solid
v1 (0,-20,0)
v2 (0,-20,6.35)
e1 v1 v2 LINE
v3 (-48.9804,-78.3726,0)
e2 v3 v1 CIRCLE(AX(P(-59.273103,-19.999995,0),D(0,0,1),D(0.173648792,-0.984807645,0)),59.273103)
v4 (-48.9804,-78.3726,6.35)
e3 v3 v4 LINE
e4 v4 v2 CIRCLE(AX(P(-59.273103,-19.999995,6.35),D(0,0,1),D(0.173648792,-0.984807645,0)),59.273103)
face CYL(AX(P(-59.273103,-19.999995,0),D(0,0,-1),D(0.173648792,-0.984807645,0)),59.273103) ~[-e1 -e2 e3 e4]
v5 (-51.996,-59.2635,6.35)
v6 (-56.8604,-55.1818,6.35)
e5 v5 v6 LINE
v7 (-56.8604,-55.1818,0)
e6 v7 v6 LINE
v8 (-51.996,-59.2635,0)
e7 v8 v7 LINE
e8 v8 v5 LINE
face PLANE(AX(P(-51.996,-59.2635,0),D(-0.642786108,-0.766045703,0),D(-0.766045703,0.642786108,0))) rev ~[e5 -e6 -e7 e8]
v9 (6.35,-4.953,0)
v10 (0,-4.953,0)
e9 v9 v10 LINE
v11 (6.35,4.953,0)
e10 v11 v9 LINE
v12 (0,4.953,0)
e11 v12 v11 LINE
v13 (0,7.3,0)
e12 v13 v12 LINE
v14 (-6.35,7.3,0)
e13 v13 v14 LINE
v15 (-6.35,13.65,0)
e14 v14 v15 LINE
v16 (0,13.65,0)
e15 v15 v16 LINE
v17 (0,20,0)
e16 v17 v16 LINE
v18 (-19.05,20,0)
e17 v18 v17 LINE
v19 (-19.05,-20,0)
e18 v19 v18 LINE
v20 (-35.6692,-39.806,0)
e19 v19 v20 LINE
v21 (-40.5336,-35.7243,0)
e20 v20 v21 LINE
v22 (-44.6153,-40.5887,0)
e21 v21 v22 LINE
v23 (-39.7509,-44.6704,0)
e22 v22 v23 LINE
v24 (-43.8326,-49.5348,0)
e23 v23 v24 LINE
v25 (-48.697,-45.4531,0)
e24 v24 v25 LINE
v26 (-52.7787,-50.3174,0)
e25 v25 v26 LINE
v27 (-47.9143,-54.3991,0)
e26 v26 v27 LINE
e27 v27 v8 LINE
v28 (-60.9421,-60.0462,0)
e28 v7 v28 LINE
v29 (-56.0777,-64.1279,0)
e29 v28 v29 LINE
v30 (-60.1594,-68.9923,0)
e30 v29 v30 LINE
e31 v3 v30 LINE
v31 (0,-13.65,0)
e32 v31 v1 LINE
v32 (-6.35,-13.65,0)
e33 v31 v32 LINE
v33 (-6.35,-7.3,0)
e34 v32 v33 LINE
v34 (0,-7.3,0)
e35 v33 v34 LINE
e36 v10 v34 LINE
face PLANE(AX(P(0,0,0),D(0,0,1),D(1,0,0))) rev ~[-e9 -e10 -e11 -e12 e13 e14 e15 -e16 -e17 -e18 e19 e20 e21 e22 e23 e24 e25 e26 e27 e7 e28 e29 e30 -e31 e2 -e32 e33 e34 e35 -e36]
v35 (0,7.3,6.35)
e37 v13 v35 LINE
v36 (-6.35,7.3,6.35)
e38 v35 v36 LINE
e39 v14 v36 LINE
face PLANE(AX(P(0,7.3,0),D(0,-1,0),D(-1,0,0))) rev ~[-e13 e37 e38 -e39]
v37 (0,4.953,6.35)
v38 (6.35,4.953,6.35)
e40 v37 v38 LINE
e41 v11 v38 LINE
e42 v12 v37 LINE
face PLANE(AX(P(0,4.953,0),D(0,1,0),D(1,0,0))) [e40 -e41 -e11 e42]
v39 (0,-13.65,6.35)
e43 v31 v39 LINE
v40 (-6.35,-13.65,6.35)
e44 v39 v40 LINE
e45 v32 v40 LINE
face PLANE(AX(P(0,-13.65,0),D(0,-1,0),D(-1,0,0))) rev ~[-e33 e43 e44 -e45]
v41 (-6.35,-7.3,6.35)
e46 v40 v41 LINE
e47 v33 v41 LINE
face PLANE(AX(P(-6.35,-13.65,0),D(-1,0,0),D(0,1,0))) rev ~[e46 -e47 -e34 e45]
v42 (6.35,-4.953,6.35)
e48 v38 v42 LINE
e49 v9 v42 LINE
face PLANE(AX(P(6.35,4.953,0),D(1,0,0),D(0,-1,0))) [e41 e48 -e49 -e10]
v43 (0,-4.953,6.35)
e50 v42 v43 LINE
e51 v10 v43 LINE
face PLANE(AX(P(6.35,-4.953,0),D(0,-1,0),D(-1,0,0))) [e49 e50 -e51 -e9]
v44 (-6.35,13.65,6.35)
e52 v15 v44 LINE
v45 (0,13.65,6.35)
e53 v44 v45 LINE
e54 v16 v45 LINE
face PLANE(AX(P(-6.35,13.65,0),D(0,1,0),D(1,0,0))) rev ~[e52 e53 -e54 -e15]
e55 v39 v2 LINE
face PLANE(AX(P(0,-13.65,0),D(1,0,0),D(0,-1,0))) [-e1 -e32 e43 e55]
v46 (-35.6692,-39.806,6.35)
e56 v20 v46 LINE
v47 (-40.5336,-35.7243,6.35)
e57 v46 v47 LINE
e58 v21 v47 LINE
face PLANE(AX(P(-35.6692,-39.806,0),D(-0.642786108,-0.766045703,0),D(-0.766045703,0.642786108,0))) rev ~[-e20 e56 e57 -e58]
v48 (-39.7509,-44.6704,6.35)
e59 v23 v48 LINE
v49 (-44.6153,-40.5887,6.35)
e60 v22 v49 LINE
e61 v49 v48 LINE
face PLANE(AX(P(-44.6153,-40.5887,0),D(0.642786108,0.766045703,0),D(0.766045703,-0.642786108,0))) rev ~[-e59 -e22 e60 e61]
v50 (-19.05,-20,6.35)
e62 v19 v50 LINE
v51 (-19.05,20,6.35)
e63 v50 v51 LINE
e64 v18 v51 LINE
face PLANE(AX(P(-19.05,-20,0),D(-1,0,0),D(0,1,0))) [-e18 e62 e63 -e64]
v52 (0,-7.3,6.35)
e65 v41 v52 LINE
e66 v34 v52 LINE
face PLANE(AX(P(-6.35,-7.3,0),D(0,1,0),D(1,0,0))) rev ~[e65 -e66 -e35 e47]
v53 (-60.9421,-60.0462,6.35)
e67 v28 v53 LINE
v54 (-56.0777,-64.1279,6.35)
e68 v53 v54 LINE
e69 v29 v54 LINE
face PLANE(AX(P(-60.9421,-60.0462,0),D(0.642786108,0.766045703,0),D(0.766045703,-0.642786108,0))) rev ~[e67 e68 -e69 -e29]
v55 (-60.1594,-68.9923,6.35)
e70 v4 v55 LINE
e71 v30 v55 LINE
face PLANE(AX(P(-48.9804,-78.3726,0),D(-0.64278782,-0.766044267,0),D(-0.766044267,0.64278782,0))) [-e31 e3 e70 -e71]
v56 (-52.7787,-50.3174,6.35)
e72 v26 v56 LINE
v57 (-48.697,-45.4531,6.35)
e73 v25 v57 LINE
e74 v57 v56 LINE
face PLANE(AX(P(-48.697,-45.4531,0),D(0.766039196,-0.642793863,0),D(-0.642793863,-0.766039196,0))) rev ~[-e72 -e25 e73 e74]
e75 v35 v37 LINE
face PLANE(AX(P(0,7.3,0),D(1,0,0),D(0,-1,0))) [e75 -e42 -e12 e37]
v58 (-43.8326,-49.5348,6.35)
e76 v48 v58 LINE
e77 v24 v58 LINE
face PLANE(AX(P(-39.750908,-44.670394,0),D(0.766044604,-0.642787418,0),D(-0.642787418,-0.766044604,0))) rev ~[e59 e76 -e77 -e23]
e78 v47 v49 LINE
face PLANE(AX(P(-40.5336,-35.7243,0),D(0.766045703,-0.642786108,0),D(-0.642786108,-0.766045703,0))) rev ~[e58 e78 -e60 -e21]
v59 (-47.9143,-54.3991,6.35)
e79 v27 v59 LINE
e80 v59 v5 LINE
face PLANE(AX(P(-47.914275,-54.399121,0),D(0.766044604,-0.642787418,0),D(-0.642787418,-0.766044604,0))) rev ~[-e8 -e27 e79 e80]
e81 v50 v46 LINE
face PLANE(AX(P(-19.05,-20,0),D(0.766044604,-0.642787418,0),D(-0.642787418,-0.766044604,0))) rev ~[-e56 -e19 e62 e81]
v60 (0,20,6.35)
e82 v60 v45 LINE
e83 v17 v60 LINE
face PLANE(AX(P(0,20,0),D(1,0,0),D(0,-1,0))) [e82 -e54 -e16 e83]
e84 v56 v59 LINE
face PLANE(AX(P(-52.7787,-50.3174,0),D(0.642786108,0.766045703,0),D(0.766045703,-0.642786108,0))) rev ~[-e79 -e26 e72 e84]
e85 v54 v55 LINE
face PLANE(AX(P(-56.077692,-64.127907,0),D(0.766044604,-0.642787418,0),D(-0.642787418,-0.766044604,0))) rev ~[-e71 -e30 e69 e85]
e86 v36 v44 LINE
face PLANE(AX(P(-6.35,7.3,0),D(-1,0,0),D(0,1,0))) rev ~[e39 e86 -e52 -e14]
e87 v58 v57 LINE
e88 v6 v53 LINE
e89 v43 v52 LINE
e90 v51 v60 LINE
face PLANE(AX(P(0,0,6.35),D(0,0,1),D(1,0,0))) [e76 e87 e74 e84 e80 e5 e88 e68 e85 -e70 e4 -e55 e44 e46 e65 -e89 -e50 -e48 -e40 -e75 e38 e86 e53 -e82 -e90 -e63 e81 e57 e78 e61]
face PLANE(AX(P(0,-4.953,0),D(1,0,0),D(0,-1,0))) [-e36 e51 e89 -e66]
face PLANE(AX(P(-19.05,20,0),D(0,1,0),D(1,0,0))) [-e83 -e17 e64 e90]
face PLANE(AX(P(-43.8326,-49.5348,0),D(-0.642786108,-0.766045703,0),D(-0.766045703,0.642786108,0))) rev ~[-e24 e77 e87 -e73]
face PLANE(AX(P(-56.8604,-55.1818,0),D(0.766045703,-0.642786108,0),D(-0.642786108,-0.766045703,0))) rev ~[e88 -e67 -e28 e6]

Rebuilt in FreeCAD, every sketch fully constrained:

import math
import FreeCAD as App
import Part
import Sketcher
Q = App.Units.Quantity

doc = App.newDocument("Part")
body = doc.addObject("PartDesign::Body", "Body")

# Sketch on XY plane
sketch1 = body.newObject("Sketcher::SketchObject", "Sketch")
sketch1.AttachmentSupport = (doc.getObject("XY_Plane"), [""])
sketch1.MapMode = "FlatFace"
sketch1.addGeometry([
    Part.LineSegment(App.Vector(-60.1594, -68.9923, 0), App.Vector(-48.9804, -78.3726, 0)),  # 0
    Part.ArcOfCircle(Part.Circle(App.Vector(-59.2731, -20, 0), App.Vector(0, 0, 1), 59.273098), math.radians(-79.999966), math.radians(0)),  # 1
    Part.LineSegment(App.Vector(0, -20, 0), App.Vector(0, -13.65, 0)),  # 2
    Part.LineSegment(App.Vector(0, -13.65, 0), App.Vector(-6.35, -13.65, 0)),  # 3
    Part.LineSegment(App.Vector(-6.35, -13.65, 0), App.Vector(-6.35, -7.3, 0)),  # 4
    Part.LineSegment(App.Vector(-6.35, -7.3, 0), App.Vector(0, -7.3, 0)),  # 5
    Part.LineSegment(App.Vector(0, -7.3, 0), App.Vector(0, -4.953, 0)),  # 6
    Part.LineSegment(App.Vector(0, -4.953, 0), App.Vector(6.35, -4.953, 0)),  # 7
    Part.LineSegment(App.Vector(6.35, -4.953, 0), App.Vector(6.35, 4.953, 0)),  # 8
    Part.LineSegment(App.Vector(6.35, 4.953, 0), App.Vector(0, 4.953, 0)),  # 9
    Part.LineSegment(App.Vector(0, 4.953, 0), App.Vector(0, 7.3, 0)),  # 10
    Part.LineSegment(App.Vector(0, 7.3, 0), App.Vector(-6.35, 7.3, 0)),  # 11
    Part.LineSegment(App.Vector(-6.35, 7.3, 0), App.Vector(-6.35, 13.65, 0)),  # 12
    Part.LineSegment(App.Vector(-6.35, 13.65, 0), App.Vector(0, 13.65, 0)),  # 13
    Part.LineSegment(App.Vector(0, 13.65, 0), App.Vector(0, 20, 0)),  # 14
    Part.LineSegment(App.Vector(0, 20, 0), App.Vector(-19.05, 20, 0)),  # 15
    Part.LineSegment(App.Vector(-19.05, 20, 0), App.Vector(-19.05, -20, 0)),  # 16
    Part.LineSegment(App.Vector(-19.05, -20, 0), App.Vector(-35.669199, -39.806001, 0)),  # 17
    Part.LineSegment(App.Vector(-35.6692, -39.806, 0), App.Vector(-40.5336, -35.7243, 0)),  # 18
    Part.LineSegment(App.Vector(-40.5336, -35.7243, 0), App.Vector(-44.6153, -40.5887, 0)),  # 19
    Part.LineSegment(App.Vector(-44.6153, -40.5887, 0), App.Vector(-39.7509, -44.6704, 0)),  # 20
    Part.LineSegment(App.Vector(-39.750908, -44.670394, 0), App.Vector(-43.832616, -49.534787, 0)),  # 21
    Part.LineSegment(App.Vector(-43.8326, -49.5348, 0), App.Vector(-48.697, -45.4531, 0)),  # 22
    Part.LineSegment(App.Vector(-48.697, -45.4531, 0), App.Vector(-52.7787, -50.3174, 0)),  # 23
    Part.LineSegment(App.Vector(-52.7787, -50.3174, 0), App.Vector(-47.9143, -54.3991, 0)),  # 24
    Part.LineSegment(App.Vector(-47.914275, -54.399121, 0), App.Vector(-51.995983, -59.263514, 0)),  # 25
    Part.LineSegment(App.Vector(-51.996, -59.2635, 0), App.Vector(-56.8604, -55.1818, 0)),  # 26
    Part.LineSegment(App.Vector(-56.8604, -55.1818, 0), App.Vector(-60.9421, -60.0462, 0)),  # 27
    Part.LineSegment(App.Vector(-60.9421, -60.0462, 0), App.Vector(-56.0777, -64.1279, 0)),  # 28
    Part.LineSegment(App.Vector(-56.077692, -64.127907, 0), App.Vector(-60.1594, -68.9923, 0)),  # 29
], False)
sketch1.addConstraint([
    Sketcher.Constraint("Coincident", 0, 2, 1, 1),
    Sketcher.Constraint("Tangent", 1, 2, 2, 1),
    Sketcher.Constraint("Coincident", 2, 2, 3, 1),
    Sketcher.Constraint("Coincident", 3, 2, 4, 1),
    Sketcher.Constraint("Coincident", 4, 2, 5, 1),
    Sketcher.Constraint("Coincident", 5, 2, 6, 1),
    Sketcher.Constraint("Coincident", 6, 2, 7, 1),
    Sketcher.Constraint("Coincident", 7, 2, 8, 1),
    Sketcher.Constraint("Coincident", 8, 2, 9, 1),
    Sketcher.Constraint("Coincident", 9, 2, 10, 1),
    Sketcher.Constraint("Coincident", 10, 2, 11, 1),
    Sketcher.Constraint("Coincident", 11, 2, 12, 1),
    Sketcher.Constraint("Coincident", 12, 2, 13, 1),
    Sketcher.Constraint("Coincident", 13, 2, 14, 1),
    Sketcher.Constraint("Coincident", 14, 2, 15, 1),
    Sketcher.Constraint("Coincident", 15, 2, 16, 1),
    Sketcher.Constraint("Coincident", 16, 2, 17, 1),
    Sketcher.Constraint("Coincident", 17, 2, 18, 1),
    Sketcher.Constraint("Coincident", 18, 2, 19, 1),
    Sketcher.Constraint("Coincident", 19, 2, 20, 1),
    Sketcher.Constraint("Coincident", 20, 2, 21, 1),
    Sketcher.Constraint("Coincident", 21, 2, 22, 1),
    Sketcher.Constraint("Coincident", 22, 2, 23, 1),
    Sketcher.Constraint("Coincident", 23, 2, 24, 1),
    Sketcher.Constraint("Coincident", 24, 2, 25, 1),
    Sketcher.Constraint("Coincident", 25, 2, 26, 1),
    Sketcher.Constraint("Coincident", 26, 2, 27, 1),
    Sketcher.Constraint("Coincident", 27, 2, 28, 1),
    Sketcher.Constraint("Coincident", 28, 2, 29, 1),
    Sketcher.Constraint("Coincident", 29, 2, 0, 1),
    Sketcher.Constraint("Vertical", 2),
    Sketcher.Constraint("Horizontal", 3),
    Sketcher.Constraint("Vertical", 4),
    Sketcher.Constraint("Horizontal", 5),
    Sketcher.Constraint("Vertical", 6),
    Sketcher.Constraint("Horizontal", 7),
    Sketcher.Constraint("Vertical", 8),
    Sketcher.Constraint("Horizontal", 9),
    Sketcher.Constraint("Vertical", 10),
    Sketcher.Constraint("Horizontal", 11),
    Sketcher.Constraint("Vertical", 12),
    Sketcher.Constraint("Horizontal", 13),
    Sketcher.Constraint("Vertical", 14),
    Sketcher.Constraint("Horizontal", 15),
    Sketcher.Constraint("Vertical", 16),
    Sketcher.Constraint("Symmetric", 6, 2, 9, 2, -1, 1),
    Sketcher.Constraint("Symmetric", 2, 2, 13, 2, -1, 1),
    Sketcher.Constraint("Symmetric", 5, 2, 10, 2, -1),
    Sketcher.Constraint("Symmetric", 1, 2, 14, 2, -1),
    Sketcher.Constraint("Perpendicular", 0, 17),
    Sketcher.Constraint("Perpendicular", 17, 18),
    Sketcher.Constraint("Perpendicular", 18, 19),
    Sketcher.Constraint("Perpendicular", 19, 20),
    Sketcher.Constraint("Perpendicular", 20, 21),
    Sketcher.Constraint("Perpendicular", 21, 22),
    Sketcher.Constraint("Perpendicular", 22, 23),
    Sketcher.Constraint("Perpendicular", 23, 24),
    Sketcher.Constraint("Perpendicular", 24, 25),
    Sketcher.Constraint("Perpendicular", 25, 26),
    Sketcher.Constraint("Perpendicular", 26, 27),
    Sketcher.Constraint("Perpendicular", 27, 28),
    Sketcher.Constraint("Perpendicular", 28, 29),
    Sketcher.Constraint("Horizontal", 1, 2, 16, 2),
    Sketcher.Constraint("Vertical", 4, 2, 11, 2),
    Sketcher.Constraint("Equal", 5, 7),
    Sketcher.Constraint("Equal", 13, 2),
    Sketcher.Constraint("Equal", 2, 4),
    Sketcher.Constraint("Equal", 18, 19),
    Sketcher.Constraint("Equal", 19, 20),
    Sketcher.Constraint("Equal", 20, 21),
    Sketcher.Constraint("Equal", 21, 22),
    Sketcher.Constraint("Equal", 22, 23),
    Sketcher.Constraint("Equal", 23, 24),
    Sketcher.Constraint("Equal", 24, 25),
    Sketcher.Constraint("Equal", 25, 26),
    Sketcher.Constraint("Equal", 26, 27),
    Sketcher.Constraint("Equal", 27, 28),
    Sketcher.Constraint("Equal", 28, 29),
    Sketcher.Constraint("Angle", 0, Q("-40 deg")),
    Sketcher.Constraint("DistanceX", 3, 2, 3, 1, Q("0.25 in")),
    Sketcher.Constraint("DistanceX", 15, 2, 15, 1, Q("0.75 in")),
    Sketcher.Constraint("DistanceY", 8, 1, 8, 2, Q("0.39 in")),
    Sketcher.Constraint("Distance", 18, Q("0.25 in")),
    Sketcher.Constraint("DistanceY", 16, 2, 16, 1, Q("1.5748 in")),
    Sketcher.Constraint("Radius", 1, Q("59.273 mm")),
    Sketcher.Constraint("DistanceX", 20, 2, -1, 1, Q("1.565 in")),
])
pad1 = body.newObject("PartDesign::Pad", "Pad")
pad1.Profile = sketch1
pad1.Length = Q("0.25 in")

doc.recompute()
